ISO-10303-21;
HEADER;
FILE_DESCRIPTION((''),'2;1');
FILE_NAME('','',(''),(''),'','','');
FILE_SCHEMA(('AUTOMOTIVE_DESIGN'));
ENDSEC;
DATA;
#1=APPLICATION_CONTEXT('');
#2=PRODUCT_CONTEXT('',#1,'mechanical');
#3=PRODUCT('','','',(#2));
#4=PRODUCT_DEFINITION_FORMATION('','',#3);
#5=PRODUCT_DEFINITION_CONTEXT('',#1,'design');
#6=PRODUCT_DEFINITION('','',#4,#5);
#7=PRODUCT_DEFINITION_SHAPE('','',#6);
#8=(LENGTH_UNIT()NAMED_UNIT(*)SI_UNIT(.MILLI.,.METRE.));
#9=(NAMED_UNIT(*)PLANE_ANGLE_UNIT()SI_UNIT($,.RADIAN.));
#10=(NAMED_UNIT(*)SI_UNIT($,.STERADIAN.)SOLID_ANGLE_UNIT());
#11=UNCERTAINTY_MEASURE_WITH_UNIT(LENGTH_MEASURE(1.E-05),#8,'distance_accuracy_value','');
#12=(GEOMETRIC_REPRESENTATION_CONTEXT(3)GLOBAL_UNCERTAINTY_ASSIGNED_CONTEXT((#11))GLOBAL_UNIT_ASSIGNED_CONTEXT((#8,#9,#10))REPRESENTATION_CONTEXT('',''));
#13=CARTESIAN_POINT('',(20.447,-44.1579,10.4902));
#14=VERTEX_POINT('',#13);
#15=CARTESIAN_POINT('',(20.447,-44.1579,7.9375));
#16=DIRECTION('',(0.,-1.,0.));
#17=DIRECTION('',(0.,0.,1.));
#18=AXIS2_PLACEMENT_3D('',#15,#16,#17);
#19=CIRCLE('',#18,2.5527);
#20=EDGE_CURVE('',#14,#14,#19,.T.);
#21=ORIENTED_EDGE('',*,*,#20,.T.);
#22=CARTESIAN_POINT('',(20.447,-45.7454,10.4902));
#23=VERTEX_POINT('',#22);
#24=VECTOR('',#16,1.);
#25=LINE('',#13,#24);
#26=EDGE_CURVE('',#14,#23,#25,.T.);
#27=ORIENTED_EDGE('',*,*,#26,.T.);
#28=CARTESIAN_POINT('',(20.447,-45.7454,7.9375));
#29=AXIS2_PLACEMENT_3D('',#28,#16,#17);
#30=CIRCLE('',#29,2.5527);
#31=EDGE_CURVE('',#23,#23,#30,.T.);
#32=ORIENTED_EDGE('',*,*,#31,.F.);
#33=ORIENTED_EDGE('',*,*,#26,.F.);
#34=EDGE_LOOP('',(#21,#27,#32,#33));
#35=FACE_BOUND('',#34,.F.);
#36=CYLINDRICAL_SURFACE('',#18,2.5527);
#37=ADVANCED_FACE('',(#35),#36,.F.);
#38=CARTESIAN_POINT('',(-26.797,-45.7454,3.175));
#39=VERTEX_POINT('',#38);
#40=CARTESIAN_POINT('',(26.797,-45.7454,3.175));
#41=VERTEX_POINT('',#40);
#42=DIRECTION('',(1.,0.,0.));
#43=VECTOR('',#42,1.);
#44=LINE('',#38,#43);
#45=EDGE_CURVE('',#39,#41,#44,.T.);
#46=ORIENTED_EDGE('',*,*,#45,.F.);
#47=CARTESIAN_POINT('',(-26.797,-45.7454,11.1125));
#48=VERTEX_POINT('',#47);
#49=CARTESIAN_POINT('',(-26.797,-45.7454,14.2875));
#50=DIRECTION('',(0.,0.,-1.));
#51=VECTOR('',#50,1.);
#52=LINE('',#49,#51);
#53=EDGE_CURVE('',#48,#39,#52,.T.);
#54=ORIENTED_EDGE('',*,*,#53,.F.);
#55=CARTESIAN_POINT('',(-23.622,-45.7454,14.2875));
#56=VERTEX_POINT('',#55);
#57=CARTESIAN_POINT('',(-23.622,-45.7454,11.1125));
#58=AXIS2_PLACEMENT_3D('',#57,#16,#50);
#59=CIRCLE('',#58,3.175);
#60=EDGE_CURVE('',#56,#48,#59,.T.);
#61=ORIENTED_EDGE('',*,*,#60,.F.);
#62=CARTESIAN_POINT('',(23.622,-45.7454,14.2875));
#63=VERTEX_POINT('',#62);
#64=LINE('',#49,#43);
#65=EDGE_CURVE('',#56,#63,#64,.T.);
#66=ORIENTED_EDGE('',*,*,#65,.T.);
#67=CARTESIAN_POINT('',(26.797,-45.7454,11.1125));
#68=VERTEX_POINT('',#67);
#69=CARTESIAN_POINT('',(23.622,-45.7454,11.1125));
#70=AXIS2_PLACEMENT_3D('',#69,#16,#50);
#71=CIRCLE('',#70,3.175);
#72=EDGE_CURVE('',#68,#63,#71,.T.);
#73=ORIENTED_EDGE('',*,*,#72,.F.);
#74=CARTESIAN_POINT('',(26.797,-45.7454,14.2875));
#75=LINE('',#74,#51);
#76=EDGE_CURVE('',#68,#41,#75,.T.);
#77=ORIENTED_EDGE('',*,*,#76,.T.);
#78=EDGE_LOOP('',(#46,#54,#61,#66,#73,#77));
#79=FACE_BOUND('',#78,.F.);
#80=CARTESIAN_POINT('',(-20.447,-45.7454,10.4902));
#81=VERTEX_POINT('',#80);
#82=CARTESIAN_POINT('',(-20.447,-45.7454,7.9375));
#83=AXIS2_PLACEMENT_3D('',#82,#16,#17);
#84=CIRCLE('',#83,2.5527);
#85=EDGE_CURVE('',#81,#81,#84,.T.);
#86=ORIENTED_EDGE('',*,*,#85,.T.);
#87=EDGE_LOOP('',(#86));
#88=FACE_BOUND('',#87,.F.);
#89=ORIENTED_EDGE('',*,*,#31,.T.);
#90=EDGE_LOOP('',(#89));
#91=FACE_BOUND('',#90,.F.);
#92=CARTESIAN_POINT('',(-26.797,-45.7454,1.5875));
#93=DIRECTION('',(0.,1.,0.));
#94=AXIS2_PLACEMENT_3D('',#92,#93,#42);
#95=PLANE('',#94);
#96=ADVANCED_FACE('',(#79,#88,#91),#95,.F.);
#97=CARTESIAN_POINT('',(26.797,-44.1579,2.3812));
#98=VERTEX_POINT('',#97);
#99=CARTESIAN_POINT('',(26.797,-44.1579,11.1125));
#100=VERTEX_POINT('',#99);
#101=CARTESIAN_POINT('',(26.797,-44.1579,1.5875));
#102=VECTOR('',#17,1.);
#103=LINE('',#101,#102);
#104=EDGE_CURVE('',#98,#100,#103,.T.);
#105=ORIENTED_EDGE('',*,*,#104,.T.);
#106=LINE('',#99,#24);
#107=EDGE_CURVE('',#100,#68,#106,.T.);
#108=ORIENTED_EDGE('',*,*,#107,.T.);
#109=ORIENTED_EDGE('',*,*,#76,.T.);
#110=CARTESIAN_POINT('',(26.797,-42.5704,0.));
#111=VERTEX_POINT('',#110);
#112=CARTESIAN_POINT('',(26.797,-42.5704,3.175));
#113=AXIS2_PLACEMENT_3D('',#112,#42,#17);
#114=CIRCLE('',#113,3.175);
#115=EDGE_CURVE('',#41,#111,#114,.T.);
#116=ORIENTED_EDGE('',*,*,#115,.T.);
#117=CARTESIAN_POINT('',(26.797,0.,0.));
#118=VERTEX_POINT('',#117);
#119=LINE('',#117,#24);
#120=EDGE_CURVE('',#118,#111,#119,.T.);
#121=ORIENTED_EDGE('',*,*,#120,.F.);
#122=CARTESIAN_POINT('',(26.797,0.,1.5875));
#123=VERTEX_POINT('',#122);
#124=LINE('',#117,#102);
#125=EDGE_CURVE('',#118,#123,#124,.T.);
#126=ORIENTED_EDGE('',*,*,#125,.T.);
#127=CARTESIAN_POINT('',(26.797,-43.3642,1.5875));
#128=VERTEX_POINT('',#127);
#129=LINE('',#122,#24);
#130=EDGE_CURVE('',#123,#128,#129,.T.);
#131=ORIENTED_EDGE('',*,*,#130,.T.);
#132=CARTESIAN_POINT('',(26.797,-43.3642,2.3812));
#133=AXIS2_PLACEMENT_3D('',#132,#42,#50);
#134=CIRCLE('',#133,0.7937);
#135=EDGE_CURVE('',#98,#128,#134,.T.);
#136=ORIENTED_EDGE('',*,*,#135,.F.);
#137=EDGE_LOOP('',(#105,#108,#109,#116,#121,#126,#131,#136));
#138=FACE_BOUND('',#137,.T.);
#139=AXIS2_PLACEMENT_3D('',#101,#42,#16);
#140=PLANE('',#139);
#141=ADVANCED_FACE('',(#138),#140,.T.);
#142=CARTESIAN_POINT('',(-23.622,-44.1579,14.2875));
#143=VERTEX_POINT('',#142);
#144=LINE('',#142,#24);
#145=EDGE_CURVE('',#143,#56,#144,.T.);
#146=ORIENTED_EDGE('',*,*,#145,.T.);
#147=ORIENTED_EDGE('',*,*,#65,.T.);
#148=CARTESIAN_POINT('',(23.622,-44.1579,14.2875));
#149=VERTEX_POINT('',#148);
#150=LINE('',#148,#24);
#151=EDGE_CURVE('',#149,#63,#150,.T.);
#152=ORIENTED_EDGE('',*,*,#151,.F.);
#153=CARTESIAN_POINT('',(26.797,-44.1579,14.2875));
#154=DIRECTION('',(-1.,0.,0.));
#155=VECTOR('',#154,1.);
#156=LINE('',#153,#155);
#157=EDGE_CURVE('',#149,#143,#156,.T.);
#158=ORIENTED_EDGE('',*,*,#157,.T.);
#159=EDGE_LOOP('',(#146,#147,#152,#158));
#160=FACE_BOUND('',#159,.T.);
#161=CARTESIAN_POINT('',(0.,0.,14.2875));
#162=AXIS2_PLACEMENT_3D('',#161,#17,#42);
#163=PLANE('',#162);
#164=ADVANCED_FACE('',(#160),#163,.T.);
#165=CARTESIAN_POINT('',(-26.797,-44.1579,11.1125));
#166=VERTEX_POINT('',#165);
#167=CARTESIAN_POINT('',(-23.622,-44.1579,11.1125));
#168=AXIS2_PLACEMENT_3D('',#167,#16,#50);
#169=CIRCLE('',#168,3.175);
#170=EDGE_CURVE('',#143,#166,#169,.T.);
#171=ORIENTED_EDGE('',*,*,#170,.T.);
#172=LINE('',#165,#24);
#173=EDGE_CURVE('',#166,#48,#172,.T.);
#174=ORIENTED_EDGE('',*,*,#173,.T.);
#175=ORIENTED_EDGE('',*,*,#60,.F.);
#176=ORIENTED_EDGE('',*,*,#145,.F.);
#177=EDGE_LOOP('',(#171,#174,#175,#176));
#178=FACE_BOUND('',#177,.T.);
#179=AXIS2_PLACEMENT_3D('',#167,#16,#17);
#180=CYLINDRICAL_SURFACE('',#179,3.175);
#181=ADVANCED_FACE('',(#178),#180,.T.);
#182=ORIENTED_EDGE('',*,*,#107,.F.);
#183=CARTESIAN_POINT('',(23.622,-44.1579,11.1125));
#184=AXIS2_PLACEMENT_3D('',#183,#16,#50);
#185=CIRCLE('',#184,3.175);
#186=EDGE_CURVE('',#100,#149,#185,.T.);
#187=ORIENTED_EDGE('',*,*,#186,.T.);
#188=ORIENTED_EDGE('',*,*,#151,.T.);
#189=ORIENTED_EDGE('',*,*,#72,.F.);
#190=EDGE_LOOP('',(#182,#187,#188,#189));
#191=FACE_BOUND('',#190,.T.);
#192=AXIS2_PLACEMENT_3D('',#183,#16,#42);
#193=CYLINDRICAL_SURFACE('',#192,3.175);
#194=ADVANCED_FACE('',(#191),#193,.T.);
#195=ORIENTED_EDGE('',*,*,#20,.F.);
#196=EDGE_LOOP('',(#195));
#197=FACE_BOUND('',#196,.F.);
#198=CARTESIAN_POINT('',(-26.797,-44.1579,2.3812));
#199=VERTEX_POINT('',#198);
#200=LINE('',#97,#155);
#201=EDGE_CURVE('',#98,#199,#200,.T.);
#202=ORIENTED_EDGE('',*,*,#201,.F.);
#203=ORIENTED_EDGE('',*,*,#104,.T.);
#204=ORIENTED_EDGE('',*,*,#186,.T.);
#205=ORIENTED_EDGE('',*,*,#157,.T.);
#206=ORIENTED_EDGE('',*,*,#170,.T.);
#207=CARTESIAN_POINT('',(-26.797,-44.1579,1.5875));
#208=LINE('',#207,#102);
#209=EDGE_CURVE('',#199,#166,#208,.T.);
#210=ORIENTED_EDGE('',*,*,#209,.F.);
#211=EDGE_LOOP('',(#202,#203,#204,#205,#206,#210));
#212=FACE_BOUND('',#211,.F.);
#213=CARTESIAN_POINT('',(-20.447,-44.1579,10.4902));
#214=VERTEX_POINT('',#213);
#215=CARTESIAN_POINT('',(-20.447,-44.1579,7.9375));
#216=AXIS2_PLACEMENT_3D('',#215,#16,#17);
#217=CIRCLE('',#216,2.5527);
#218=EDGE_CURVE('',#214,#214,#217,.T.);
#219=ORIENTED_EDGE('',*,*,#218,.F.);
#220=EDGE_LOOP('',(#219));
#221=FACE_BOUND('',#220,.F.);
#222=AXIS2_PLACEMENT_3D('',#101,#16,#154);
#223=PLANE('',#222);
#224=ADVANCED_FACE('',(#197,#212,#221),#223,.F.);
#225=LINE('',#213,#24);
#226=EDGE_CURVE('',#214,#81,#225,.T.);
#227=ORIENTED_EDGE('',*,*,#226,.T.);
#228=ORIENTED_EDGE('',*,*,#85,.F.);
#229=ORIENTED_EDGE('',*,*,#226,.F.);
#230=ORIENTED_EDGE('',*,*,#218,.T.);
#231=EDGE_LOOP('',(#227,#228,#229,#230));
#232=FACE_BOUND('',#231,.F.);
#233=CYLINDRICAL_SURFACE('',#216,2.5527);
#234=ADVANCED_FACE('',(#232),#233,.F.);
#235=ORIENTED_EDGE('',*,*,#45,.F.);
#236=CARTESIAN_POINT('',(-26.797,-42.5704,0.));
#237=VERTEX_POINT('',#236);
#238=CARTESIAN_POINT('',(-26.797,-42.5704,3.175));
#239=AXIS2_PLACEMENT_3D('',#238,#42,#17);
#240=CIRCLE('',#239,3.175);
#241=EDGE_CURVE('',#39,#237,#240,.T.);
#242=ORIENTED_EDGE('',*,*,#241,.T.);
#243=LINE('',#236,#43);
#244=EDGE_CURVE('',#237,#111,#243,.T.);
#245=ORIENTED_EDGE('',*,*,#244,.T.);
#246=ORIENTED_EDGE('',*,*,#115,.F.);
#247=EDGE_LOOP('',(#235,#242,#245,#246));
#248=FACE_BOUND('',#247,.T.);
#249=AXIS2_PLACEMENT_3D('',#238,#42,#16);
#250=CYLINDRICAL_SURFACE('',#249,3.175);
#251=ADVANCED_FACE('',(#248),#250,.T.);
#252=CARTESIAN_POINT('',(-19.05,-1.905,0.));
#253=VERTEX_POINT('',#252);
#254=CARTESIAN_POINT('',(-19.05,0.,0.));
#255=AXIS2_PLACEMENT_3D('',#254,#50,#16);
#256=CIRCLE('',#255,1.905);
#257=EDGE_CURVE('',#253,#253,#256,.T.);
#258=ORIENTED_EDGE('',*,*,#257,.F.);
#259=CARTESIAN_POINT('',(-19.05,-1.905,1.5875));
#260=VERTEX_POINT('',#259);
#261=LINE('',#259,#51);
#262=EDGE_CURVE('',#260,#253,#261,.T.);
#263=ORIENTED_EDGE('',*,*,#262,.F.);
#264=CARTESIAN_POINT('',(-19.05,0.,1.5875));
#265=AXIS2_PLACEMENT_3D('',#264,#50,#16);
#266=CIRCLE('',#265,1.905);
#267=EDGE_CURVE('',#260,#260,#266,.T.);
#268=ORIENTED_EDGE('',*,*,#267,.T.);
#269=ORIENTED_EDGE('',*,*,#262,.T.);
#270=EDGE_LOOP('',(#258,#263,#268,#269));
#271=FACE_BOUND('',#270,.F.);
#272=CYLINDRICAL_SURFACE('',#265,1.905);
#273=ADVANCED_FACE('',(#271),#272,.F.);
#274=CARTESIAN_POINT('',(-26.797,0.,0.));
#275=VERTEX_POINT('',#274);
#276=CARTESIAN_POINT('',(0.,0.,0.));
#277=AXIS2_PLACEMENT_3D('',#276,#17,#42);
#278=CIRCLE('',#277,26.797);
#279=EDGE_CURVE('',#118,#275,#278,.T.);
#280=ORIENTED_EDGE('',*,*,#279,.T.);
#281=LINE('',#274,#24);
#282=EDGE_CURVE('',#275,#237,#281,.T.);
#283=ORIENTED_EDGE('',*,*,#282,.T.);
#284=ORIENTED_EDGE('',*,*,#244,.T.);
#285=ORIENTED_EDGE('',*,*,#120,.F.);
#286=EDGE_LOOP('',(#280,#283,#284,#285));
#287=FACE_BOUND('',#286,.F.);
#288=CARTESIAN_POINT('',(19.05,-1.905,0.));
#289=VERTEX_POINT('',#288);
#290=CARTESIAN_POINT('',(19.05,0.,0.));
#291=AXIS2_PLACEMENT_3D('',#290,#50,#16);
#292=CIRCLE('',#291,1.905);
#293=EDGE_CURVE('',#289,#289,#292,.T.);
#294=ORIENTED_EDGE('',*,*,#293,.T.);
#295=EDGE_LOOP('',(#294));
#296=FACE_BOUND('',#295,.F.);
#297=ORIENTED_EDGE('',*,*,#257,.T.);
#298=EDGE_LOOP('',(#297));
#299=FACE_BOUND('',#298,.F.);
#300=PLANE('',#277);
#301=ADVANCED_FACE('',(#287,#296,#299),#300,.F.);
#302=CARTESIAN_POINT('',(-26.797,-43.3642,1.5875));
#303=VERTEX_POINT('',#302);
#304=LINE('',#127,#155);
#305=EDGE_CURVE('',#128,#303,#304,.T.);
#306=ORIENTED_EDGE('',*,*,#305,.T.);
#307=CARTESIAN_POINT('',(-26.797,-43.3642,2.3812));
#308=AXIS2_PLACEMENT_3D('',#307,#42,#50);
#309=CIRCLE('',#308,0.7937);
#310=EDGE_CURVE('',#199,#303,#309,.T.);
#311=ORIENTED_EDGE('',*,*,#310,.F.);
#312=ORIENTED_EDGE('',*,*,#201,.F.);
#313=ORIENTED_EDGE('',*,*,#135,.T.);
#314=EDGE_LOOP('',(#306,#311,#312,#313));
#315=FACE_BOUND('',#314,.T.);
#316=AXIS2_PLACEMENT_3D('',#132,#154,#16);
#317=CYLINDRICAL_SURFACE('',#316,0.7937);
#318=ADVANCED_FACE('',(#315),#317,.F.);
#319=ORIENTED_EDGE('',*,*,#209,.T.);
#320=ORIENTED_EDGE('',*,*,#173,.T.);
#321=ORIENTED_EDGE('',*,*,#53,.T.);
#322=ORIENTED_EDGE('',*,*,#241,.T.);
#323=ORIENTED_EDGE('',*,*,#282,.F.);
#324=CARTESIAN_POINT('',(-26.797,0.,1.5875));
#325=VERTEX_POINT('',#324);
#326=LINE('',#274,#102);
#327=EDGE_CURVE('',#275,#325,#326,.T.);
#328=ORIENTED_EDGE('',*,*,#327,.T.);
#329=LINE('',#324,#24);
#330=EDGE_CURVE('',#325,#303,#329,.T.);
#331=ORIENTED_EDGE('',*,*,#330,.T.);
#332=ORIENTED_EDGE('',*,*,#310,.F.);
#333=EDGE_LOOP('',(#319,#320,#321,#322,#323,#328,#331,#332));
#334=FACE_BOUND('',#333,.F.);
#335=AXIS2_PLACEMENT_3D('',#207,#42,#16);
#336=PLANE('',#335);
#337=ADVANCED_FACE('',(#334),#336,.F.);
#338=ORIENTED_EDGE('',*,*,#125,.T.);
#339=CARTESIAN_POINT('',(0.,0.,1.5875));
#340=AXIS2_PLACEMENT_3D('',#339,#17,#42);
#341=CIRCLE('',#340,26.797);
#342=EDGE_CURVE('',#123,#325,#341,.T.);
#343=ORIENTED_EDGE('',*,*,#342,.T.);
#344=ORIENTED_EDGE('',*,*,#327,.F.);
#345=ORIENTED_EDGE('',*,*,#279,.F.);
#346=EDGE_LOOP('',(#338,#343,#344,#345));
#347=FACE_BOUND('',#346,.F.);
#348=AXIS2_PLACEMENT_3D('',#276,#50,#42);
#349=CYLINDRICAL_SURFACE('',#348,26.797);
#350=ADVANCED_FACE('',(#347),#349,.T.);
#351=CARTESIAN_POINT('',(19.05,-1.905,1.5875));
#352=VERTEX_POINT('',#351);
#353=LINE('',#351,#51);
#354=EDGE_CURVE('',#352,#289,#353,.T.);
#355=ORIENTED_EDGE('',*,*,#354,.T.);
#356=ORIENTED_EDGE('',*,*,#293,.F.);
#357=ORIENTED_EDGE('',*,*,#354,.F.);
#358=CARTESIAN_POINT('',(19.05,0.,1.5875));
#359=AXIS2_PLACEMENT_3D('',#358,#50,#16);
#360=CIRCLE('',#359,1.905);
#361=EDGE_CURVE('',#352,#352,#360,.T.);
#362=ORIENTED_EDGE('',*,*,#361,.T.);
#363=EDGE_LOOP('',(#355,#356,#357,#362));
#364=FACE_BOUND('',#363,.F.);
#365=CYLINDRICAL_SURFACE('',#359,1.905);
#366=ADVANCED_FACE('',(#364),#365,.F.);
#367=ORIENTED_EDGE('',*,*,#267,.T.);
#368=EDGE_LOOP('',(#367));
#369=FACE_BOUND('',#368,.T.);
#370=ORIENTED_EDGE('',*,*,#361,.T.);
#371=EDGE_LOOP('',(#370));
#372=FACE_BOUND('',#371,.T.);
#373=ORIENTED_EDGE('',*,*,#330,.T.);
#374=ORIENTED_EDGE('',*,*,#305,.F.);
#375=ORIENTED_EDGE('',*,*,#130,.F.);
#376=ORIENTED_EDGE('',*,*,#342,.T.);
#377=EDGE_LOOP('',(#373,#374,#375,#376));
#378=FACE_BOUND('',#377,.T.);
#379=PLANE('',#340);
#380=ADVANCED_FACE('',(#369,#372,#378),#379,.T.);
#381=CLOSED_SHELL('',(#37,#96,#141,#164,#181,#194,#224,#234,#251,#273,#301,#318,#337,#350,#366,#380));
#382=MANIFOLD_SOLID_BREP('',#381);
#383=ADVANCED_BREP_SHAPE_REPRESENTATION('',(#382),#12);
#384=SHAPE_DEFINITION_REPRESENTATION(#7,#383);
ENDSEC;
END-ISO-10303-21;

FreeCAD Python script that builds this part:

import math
import FreeCAD as App
import Part
import Sketcher
Q = App.Units.Quantity


def edges_at(feature, points):
    """Names of the edges that pass closest to the given points."""
    edges = feature.Shape.Edges
    near = lambda p: min(range(len(edges)), key=lambda i: edges[i].distToShape(Part.Vertex(*p))[0])
    return sorted({f"Edge{near(p) + 1}" for p in points})

doc = App.newDocument("Part")
body = doc.addObject("PartDesign::Body", "Body")

# Sketch on XY plane
sketch1 = doc.addObject("Sketcher::SketchObject", "Sketch")
body.addObject(sketch1)
sketch1.AttachmentSupport = (doc.XY_Plane, [""])
sketch1.MapMode = "FlatFace"
sketch1.addGeometry([
    Part.ArcOfCircle(Part.Circle(App.Vector(0, 0, 0), App.Vector(0, 0, 1), 27), math.radians(0), math.radians(180)),
    Part.LineSegment(App.Vector(-27, 0, 0), App.Vector(-27, -46, 0)),
    Part.LineSegment(App.Vector(-27, -46, 0), App.Vector(27, -46, 0)),
    Part.LineSegment(App.Vector(27, -46, 0), App.Vector(27, 0, 0)),
], False)
sketch1.addConstraint([
    Sketcher.Constraint("Tangent", 0, 2, 1, 1),
    Sketcher.Constraint("Coincident", 1, 2, 2, 1),
    Sketcher.Constraint("Coincident", 2, 2, 3, 1),
    Sketcher.Constraint("Tangent", 3, 2, 0, 1),
    Sketcher.Constraint("Vertical", 1),
    Sketcher.Constraint("Horizontal", 2),
    Sketcher.Constraint("Vertical", 3),
    Sketcher.Constraint("Coincident", 0, 3, -1, 1),
    Sketcher.Constraint("Radius", 0, Q("1.055 in")),
    Sketcher.Constraint("DistanceY", 1, 2, 1, 1, Q("1.801 in")),
])
pad1 = doc.addObject("PartDesign::Pad", "Pad")
body.addObject(pad1)
pad1.Profile = sketch1
pad1.Length = Q("0.0625 in")

# Sketch on XY plane
sketch2 = doc.addObject("Sketcher::SketchObject", "Sketch001")
body.addObject(sketch2)
sketch2.AttachmentSupport = (doc.XY_Plane, [""])
sketch2.MapMode = "FlatFace"
sketch2.AttachmentOffset = App.Placement(App.Vector(0, 0, 0.0625 * 25.4), App.Rotation())
sketch2.addGeometry([
    Part.LineSegment(App.Vector(26.8, -45.7, 0), App.Vector(26.8, -44.2, 0)),
    Part.LineSegment(App.Vector(26.8, -44.2, 0), App.Vector(-26.8, -44.2, 0)),
    Part.LineSegment(App.Vector(-26.8, -44.2, 0), App.Vector(-26.8, -45.7, 0)),
    Part.LineSegment(App.Vector(-26.8, -45.7, 0), App.Vector(26.8, -45.7, 0)),
], False)
sketch2.addConstraint([
    Sketcher.Constraint("Coincident", 0, 2, 1, 1),
    Sketcher.Constraint("Coincident", 1, 2, 2, 1),
    Sketcher.Constraint("Coincident", 2, 2, 3, 1),
    Sketcher.Constraint("Coincident", 3, 2, 0, 1),
    Sketcher.Constraint("Vertical", 0),
    Sketcher.Constraint("Horizontal", 1),
    Sketcher.Constraint("Vertical", 2),
    Sketcher.Constraint("Horizontal", 3),
    Sketcher.Constraint("DistanceY", 0, 1, 0, 2, Q("0.0625 in")),
    Sketcher.Constraint("DistanceX", 1, 2, 1, 1, Q("2.11 in")),
    Sketcher.Constraint("DistanceX", -1, 1, 0, 2, Q("1.055 in")),
    Sketcher.Constraint("DistanceY", 2, 2, -1, 1, Q("1.801 in")),
])
pad2 = doc.addObject("PartDesign::Pad", "Pad001")
body.addObject(pad2)
pad2.Profile = sketch2
pad2.Length = Q("0.5 in")
doc.recompute()

fillet = doc.addObject("PartDesign::Fillet", "Fillet")
body.addObject(fillet)
fillet.Base = (pad2, edges_at(pad2, [(-26.797, -44.952, 14.287), (26.797, -44.952, 14.287)]))
fillet.Radius = Q("0.125 in")

# Sketch on XZ plane
sketch3 = doc.addObject("Sketcher::SketchObject", "Sketch002")
body.addObject(sketch3)
sketch3.AttachmentSupport = (doc.XZ_Plane, [""])
sketch3.MapMode = "FlatFace"
sketch3.AttachmentOffset = App.Placement(App.Vector(0, 0, 1.7385 * 25.4), App.Rotation())
sketch3.addGeometry(Part.Circle(App.Vector(-20.4, 7.9, 0), App.Vector(0, 0, 1), 2.6), False)
sketch3.addConstraint([
    Sketcher.Constraint("Diameter", 0, Q("0.201 in")),
    Sketcher.Constraint("DistanceX", 0, 3, -1, 1, Q("0.805 in")),
    Sketcher.Constraint("DistanceY", -1, 1, 0, 3, Q("0.3125 in")),
])
doc.recompute()
hole = doc.addObject("PartDesign::Hole", "Hole")
body.addObject(hole)
hole.Profile = sketch3
hole.ThreadType = "None"
hole.Diameter = Q("0.201 in")
hole.DepthType = "ThroughAll"
hole.Reversed = True
doc.recompute()

fillet2 = doc.addObject("PartDesign::Fillet", "Fillet001")
body.addObject(fillet2)
fillet2.Base = (hole, edges_at(hole, [(0, -44.158, 1.587)]))
fillet2.Radius = Q("0.031248 in")

# Sketch on XZ plane
sketch4 = doc.addObject("Sketcher::SketchObject", "Sketch003")
body.addObject(sketch4)
sketch4.AttachmentSupport = (doc.XZ_Plane, [""])
sketch4.MapMode = "FlatFace"
sketch4.AttachmentOffset = App.Placement(App.Vector(0, 0, 1.7385 * 25.4), App.Rotation())
sketch4.addGeometry(Part.Circle(App.Vector(20.4, 7.9, 0), App.Vector(0, 0, 1), 2.6), False)
sketch4.addConstraint([
    Sketcher.Constraint("Diameter", 0, Q("0.201 in")),
    Sketcher.Constraint("DistanceX", -1, 1, 0, 3, Q("0.805 in")),
    Sketcher.Constraint("DistanceY", -1, 1, 0, 3, Q("0.3125 in")),
])
doc.recompute()
hole2 = doc.addObject("PartDesign::Hole", "Hole001")
body.addObject(hole2)
hole2.Profile = sketch4
hole2.ThreadType = "None"
hole2.Diameter = Q("0.201 in")
hole2.DepthType = "ThroughAll"
hole2.Reversed = True

# Sketch on XY plane
sketch5 = doc.addObject("Sketcher::SketchObject", "Sketch004")
body.addObject(sketch5)
sketch5.AttachmentSupport = (doc.XY_Plane, [""])
sketch5.MapMode = "FlatFace"
sketch5.AttachmentOffset = App.Placement(App.Vector(0, 0, 0.0625 * 25.4), App.Rotation())
sketch5.addGeometry([
    Part.Circle(App.Vector(-19.1, 0, 0), App.Vector(0, 0, 1), 1.9),
    Part.Circle(App.Vector(19.1, 0, 0), App.Vector(0, 0, 1), 1.9),
], False)
sketch5.addConstraint([
    Sketcher.Constraint("Equal", 0, 1),
    Sketcher.Constraint("Symmetric", 0, 3, 1, 3, -1, 1),
    Sketcher.Constraint("PointOnObject", 0, 3, -1),
    Sketcher.Constraint("Diameter", 0, Q("0.15 in")),
    Sketcher.Constraint("DistanceX", 0, 3, 1, 3, Q("1.5 in")),
])
doc.recompute()
hole3 = doc.addObject("PartDesign::Hole", "Hole002")
body.addObject(hole3)
hole3.Profile = sketch5
hole3.ThreadType = "None"
hole3.Diameter = Q("0.15 in")
hole3.DepthType = "ThroughAll"
doc.recompute()

fillet3 = doc.addObject("PartDesign::Fillet", "Fillet002")
body.addObject(fillet3)
fillet3.Base = (hole3, edges_at(hole3, [(0, -45.745, 0)]))
fillet3.Radius = Q("0.125 in")

doc.recompute()
